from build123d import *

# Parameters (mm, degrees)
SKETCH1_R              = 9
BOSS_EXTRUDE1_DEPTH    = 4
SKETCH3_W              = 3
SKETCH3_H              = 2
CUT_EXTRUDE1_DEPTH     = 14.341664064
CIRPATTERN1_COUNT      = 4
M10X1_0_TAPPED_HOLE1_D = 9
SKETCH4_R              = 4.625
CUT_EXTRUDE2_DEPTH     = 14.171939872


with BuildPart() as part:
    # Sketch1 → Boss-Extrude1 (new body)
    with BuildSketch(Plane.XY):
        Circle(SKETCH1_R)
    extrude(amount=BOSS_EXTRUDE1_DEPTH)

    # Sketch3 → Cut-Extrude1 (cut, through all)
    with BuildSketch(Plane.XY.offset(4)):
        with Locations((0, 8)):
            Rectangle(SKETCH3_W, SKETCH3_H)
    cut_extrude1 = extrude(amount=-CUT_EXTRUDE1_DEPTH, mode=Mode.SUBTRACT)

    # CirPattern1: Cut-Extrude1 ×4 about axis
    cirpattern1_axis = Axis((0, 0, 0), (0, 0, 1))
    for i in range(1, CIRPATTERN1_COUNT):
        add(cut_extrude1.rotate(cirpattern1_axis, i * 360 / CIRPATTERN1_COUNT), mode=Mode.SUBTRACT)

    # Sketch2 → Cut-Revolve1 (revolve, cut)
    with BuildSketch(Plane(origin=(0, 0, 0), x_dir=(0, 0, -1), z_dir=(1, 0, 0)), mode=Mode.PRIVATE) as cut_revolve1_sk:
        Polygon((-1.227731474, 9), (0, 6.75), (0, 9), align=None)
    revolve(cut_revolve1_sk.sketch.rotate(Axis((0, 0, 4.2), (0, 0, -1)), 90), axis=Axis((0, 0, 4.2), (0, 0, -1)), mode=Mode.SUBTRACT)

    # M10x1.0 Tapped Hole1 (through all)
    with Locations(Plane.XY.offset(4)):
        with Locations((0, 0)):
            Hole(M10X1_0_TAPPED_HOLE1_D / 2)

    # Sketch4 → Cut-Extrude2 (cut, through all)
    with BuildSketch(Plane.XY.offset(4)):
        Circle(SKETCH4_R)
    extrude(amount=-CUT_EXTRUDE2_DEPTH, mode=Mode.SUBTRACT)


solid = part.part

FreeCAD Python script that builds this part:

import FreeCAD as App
import Part
import Sketcher


def add_polygon(sketch, points):
    """Adds a closed chain of lines whose ends are joined by coincident constraints."""
    first, n = sketch.GeometryCount, len(points)
    for a, b in zip(points, points[1:] + points[:1]):
        sketch.addGeometry(Part.LineSegment(App.Vector(*a, 0), App.Vector(*b, 0)), False)
    for i in range(n):
        sketch.addConstraint(Sketcher.Constraint("Coincident", first + i, 2, first + (i + 1) % n, 1))

doc = App.newDocument("Part")
body = doc.addObject("PartDesign::Body", "Body")

sketch1 = body.newObject("Sketcher::SketchObject", "Sketch")
sketch1.AttachmentSupport = (doc.getObject("XY_Plane"), [""])
sketch1.MapMode = "FlatFace"
sketch1.addGeometry(Part.Circle(App.Vector(0, 0, 0), App.Vector(0, 0, 1), 9), False)
sketch1.addConstraint([
    Sketcher.Constraint("Coincident", 0, 3, -1, 1),
    Sketcher.Constraint("Diameter", 0, 18.0),
])
pad1 = body.newObject("PartDesign::Pad", "Pad")
pad1.Profile = sketch1
pad1.Length = 4

sketch2 = body.newObject("Sketcher::SketchObject", "Sketch001")
sketch2.AttachmentSupport = (doc.getObject("XY_Plane"), [""])
sketch2.MapMode = "FlatFace"
sketch2.AttachmentOffset = App.Placement(App.Vector(0, 0, 4), App.Rotation())
add_polygon(sketch2, [(-1.5, 9), (-1.5, 7), (1.5, 7), (1.5, 9)])
sketch2.addConstraint([
    Sketcher.Constraint("Vertical", 0),
    Sketcher.Constraint("Horizontal", 1),
    Sketcher.Constraint("Vertical", 2),
    Sketcher.Constraint("Horizontal", 3),
    Sketcher.Constraint("DistanceX", 1, 1, 1, 2, 3.0),
    Sketcher.Constraint("DistanceY", 0, 2, 0, 1, 2.0),
    Sketcher.Constraint("DistanceY", -1, 1, 0, 2, 7.0),
    Sketcher.Constraint("DistanceX", 0, 2, -1, 1, 1.5),
])
pocket1 = body.newObject("PartDesign::Pocket", "Pocket")
pocket1.Profile = sketch2
pocket1.Type = "ThroughAll"
doc.recompute()

polarpattern = body.newObject("PartDesign::PolarPattern", "PolarPattern")
polarpattern.Originals = [pocket1]
polarpattern.Axis = (doc.getObject("Z_Axis"), [""])
polarpattern.Angle = 360
polarpattern.Occurrences = 4
body.Tip = polarpattern

sketch3 = body.newObject("Sketcher::SketchObject", "Sketch002")
sketch3.AttachmentSupport = (doc.getObject("YZ_Plane"), [""])
sketch3.MapMode = "FlatFace"
add_polygon(sketch3, [(9, 1.2), (6.8, 0), (9, 0)])
sketch3.addConstraint([
    Sketcher.Constraint("Horizontal", 1),
    Sketcher.Constraint("Vertical", 2),
    Sketcher.Constraint("PointOnObject", 0, 2, -1),
    Sketcher.Constraint("DistanceX", -1, 1, 1, 2, 9.0),
    Sketcher.Constraint("DistanceX", 1, 1, 1, 2, 2.25),
    Sketcher.Constraint("DistanceY", 2, 1, 2, 2, 1.227731),
])
groove = body.newObject("PartDesign::Groove", "Groove")
groove.Profile = sketch3
groove.ReferenceAxis = (sketch3, ["V_Axis"])
groove.Angle = 360

sketch4 = body.newObject("Sketcher::SketchObject", "Sketch003")
sketch4.AttachmentSupport = (doc.getObject("XY_Plane"), [""])
sketch4.MapMode = "FlatFace"
sketch4.AttachmentOffset = App.Placement(App.Vector(0, 0, 4), App.Rotation())
sketch4.addGeometry(Part.Circle(App.Vector(0, 0, 0), App.Vector(0, 0, 1), 4.5), False)
sketch4.addConstraint([
    Sketcher.Constraint("Coincident", 0, 3, -1, 1),
    Sketcher.Constraint("Diameter", 0, 9.0),
])
doc.recompute()
hole = body.newObject("PartDesign::Hole", "Hole")
hole.Profile = sketch4
hole.ThreadType = "None"
hole.Diameter = 9
hole.DepthType = "ThroughAll"

sketch5 = body.newObject("Sketcher::SketchObject", "Sketch004")
sketch5.AttachmentSupport = (doc.getObject("XY_Plane"), [""])
sketch5.MapMode = "FlatFace"
sketch5.AttachmentOffset = App.Placement(App.Vector(0, 0, 4), App.Rotation())
sketch5.addGeometry(Part.Circle(App.Vector(0, 0, 0), App.Vector(0, 0, 1), 4.6), False)
sketch5.addConstraint([
    Sketcher.Constraint("Coincident", 0, 3, -1, 1),
    Sketcher.Constraint("Diameter", 0, 9.25),
])
pocket2 = body.newObject("PartDesign::Pocket", "Pocket001")
pocket2.Profile = sketch5
pocket2.Type = "ThroughAll"

doc.recompute()
